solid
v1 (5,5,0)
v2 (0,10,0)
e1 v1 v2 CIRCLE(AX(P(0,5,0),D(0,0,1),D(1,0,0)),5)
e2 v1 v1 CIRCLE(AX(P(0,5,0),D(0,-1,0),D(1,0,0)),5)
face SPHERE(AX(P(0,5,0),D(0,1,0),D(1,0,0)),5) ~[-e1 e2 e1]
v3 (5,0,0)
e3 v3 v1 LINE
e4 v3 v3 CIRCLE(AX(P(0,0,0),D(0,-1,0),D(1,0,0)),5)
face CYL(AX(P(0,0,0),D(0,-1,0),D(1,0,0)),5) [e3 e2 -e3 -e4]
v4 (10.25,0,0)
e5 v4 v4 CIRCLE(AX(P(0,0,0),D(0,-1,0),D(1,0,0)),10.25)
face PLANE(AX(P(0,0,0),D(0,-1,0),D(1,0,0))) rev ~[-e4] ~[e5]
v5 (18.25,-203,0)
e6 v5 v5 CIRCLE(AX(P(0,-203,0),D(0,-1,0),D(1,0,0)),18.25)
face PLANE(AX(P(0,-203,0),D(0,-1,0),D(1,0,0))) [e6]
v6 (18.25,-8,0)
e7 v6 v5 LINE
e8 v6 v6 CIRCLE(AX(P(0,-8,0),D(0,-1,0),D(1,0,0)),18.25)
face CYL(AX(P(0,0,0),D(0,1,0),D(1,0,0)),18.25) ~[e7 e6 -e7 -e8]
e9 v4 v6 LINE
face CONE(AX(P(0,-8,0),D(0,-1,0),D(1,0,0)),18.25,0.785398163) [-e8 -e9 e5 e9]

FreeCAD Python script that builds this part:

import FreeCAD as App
import Part
import Sketcher

V = App.Vector
Q = App.Units.Quantity


def edges_at(feature, points):
    """Names of the edges that pass closest to the given points."""
    edges = feature.Shape.Edges
    near = lambda p: min(range(len(edges)), key=lambda i: edges[i].distToShape(Part.Vertex(*p))[0])
    return sorted({f"Edge{near(p) + 1}" for p in points})

doc = App.newDocument("Part")
params = doc.addObject("Spreadsheet::Sheet", "Params")
for row, (alias, value) in enumerate([
    ("sketch1_diameter", "36.5 mm"),
    ("pad1_length", "203 mm"),
    ("sketch2_diameter", "10 mm"),
    ("pad2_length", "10 mm"),
    ("fillet_radius", "5 mm"),
    ("chamfer_size", "8 mm"),
], start=1):
    params.set(f"A{row}", alias)
    params.set(f"B{row}", "=" + value)
    params.setAlias(f"B{row}", alias)

body = doc.addObject("PartDesign::Body", "Body")

sketch1 = doc.addObject("Sketcher::SketchObject", "Sketch")
body.addObject(sketch1)
sketch1.AttachmentSupport = (doc.XZ_Plane, [""])
sketch1.MapMode = "FlatFace"
sketch1.addGeometry(Part.Circle(V(0, 0, 0), V(0, 0, 1), 18), False)
sketch1.addConstraint([
    Sketcher.Constraint("Coincident", 0, 3, -1, 1),
    Sketcher.Constraint("Diameter", 0, Q("36.5 mm")),
])
sketch1.setExpression("Constraints[1]", "Params.sketch1_diameter")
pad1 = doc.addObject("PartDesign::Pad", "Pad")
body.addObject(pad1)
pad1.Profile = sketch1
pad1.setExpression("Length", "Params.pad1_length")

sketch2 = doc.addObject("Sketcher::SketchObject", "Sketch001")
body.addObject(sketch2)
sketch2.AttachmentSupport = (doc.XZ_Plane, [""])
sketch2.MapMode = "FlatFace"
sketch2.addGeometry(Part.Circle(V(0, 0, 0), V(0, 0, 1), 5), False)
sketch2.addConstraint([
    Sketcher.Constraint("Coincident", 0, 3, -1, 1),
    Sketcher.Constraint("Diameter", 0, Q("10 mm")),
])
sketch2.setExpression("Constraints[1]", "Params.sketch2_diameter")
pad2 = doc.addObject("PartDesign::Pad", "Pad001")
body.addObject(pad2)
pad2.Profile = sketch2
pad2.setExpression("Length", "Params.pad2_length")
pad2.Reversed = True
doc.recompute()

fillet = doc.addObject("PartDesign::Fillet", "Fillet")
body.addObject(fillet)
fillet.Base = (pad2, edges_at(pad2, [(-5, 10, 0)]))
fillet.setExpression("Radius", "Params.fillet_radius")
doc.recompute()

chamfer = doc.addObject("PartDesign::Chamfer", "Chamfer")
body.addObject(chamfer)
chamfer.Base = (fillet, edges_at(fillet, [(-18.25, 0, 0)]))
chamfer.setExpression("Size", "Params.chamfer_size")

doc.recompute()
